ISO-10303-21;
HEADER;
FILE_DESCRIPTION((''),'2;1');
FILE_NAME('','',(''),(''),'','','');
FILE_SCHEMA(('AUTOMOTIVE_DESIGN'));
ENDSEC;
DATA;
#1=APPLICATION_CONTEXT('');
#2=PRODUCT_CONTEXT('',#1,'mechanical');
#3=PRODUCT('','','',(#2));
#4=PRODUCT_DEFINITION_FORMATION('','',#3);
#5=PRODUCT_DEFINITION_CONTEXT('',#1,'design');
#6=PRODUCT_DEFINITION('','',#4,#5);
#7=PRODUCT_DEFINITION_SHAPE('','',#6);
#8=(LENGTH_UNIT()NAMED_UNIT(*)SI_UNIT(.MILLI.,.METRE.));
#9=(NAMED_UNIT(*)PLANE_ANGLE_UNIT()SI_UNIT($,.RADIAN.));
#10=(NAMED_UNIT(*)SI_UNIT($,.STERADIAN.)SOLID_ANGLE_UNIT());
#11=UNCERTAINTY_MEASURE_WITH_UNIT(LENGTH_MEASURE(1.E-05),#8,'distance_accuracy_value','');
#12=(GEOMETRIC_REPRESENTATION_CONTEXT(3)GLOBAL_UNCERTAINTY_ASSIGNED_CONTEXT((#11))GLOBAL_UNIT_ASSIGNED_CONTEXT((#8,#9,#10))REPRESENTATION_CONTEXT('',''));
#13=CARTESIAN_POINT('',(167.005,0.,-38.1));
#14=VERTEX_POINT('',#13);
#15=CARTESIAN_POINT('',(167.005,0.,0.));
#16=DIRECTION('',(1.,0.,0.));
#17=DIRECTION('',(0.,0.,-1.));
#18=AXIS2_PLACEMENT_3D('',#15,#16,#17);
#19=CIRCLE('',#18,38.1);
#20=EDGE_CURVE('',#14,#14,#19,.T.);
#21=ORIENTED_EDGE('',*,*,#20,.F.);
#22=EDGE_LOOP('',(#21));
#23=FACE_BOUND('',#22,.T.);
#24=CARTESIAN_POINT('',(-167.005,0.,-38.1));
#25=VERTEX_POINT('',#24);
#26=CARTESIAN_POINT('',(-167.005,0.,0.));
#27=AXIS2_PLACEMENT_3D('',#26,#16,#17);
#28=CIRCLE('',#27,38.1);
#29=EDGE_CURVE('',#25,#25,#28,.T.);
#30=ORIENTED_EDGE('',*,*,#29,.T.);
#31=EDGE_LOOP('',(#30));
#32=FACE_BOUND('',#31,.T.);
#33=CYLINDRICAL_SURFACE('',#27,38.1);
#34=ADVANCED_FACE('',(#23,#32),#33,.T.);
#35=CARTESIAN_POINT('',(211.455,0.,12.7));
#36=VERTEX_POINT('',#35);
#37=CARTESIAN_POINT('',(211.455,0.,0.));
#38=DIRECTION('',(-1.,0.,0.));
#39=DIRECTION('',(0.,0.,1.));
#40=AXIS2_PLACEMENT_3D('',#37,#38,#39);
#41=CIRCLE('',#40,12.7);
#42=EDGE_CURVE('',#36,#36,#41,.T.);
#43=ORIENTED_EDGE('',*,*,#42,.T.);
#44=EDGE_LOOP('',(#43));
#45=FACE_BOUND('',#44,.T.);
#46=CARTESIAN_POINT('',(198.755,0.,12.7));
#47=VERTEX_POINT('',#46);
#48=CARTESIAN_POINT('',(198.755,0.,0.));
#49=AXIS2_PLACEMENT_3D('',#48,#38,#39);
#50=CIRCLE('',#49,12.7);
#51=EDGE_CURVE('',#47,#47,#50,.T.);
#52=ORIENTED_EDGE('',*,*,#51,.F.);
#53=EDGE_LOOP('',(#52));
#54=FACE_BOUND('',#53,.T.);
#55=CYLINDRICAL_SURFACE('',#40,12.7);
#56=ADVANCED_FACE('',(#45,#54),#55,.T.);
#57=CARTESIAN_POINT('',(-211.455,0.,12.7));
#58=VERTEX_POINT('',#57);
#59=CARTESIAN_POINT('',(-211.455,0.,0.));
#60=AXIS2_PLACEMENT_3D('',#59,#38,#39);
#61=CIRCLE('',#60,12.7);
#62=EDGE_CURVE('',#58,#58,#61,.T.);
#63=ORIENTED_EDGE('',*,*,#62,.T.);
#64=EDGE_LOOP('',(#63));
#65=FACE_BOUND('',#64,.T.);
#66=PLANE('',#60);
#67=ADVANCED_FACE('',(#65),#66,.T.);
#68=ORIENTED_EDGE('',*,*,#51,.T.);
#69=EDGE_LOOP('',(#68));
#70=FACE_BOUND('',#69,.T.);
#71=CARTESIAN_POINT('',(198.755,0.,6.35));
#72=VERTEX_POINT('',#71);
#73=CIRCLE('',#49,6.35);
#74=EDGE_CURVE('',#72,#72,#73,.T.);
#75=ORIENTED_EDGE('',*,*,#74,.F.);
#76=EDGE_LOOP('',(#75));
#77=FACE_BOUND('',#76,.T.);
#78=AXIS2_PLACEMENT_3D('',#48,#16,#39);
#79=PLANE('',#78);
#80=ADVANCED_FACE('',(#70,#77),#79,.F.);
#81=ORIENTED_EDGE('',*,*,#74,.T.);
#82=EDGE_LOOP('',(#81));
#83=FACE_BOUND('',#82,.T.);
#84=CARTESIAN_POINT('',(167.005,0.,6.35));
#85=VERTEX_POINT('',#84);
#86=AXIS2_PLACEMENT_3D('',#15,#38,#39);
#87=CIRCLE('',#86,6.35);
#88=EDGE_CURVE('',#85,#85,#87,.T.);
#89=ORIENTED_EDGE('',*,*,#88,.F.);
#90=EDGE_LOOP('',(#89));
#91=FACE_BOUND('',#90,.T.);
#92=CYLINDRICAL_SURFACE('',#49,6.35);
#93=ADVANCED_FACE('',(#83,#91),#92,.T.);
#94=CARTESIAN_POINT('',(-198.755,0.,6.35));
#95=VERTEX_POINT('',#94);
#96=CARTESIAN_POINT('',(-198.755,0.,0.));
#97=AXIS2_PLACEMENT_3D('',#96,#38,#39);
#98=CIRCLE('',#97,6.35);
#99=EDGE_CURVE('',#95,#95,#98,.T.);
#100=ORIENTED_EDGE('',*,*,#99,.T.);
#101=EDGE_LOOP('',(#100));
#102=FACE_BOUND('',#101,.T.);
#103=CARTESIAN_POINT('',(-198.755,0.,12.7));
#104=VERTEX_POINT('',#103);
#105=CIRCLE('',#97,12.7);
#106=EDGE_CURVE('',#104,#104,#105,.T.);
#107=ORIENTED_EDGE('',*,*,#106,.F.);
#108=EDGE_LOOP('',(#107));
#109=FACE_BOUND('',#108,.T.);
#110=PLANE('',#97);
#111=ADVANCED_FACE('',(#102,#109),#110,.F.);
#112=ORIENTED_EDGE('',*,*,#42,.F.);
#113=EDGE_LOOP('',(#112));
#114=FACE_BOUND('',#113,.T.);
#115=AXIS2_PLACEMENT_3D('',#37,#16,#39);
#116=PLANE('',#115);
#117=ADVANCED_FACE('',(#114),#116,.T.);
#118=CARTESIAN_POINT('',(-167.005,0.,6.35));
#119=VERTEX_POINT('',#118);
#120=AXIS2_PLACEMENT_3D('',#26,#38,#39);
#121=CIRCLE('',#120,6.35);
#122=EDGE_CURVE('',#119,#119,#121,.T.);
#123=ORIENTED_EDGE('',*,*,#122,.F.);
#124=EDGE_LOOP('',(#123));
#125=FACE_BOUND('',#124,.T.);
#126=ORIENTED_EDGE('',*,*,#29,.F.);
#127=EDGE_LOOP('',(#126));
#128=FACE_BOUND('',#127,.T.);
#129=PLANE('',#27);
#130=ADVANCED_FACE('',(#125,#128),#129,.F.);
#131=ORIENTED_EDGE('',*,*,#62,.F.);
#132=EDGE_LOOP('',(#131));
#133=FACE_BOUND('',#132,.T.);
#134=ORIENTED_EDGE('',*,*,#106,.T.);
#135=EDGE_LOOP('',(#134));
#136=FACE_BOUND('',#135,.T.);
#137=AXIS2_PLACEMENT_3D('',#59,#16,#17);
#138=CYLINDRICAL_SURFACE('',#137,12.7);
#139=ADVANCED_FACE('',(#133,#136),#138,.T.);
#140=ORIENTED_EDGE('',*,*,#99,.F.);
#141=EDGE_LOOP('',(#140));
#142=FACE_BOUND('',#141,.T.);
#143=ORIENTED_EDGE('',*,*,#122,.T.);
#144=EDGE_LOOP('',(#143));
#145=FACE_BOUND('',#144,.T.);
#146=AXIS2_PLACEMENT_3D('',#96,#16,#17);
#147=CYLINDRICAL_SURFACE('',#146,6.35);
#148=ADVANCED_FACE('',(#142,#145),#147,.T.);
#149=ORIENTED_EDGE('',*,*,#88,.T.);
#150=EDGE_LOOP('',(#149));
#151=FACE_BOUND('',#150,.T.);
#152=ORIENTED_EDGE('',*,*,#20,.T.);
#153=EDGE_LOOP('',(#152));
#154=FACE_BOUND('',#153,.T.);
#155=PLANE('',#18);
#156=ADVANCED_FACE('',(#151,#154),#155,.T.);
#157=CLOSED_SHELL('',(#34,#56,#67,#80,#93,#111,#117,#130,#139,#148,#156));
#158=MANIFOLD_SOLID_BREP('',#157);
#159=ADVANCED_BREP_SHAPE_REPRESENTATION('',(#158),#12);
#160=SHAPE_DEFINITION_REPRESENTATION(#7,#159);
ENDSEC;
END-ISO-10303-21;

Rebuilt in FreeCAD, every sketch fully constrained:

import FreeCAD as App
import Part
import Sketcher
Q = App.Units.Quantity

doc = App.newDocument("Part")
body = doc.addObject("PartDesign::Body", "Body")

# Sketch on YZ plane
sketch1 = body.newObject("Sketcher::SketchObject", "Sketch")
sketch1.AttachmentSupport = (doc.getObject("YZ_Plane"), [""])
sketch1.MapMode = "FlatFace"
sketch1.addGeometry(Part.Circle(App.Vector(0, 0, 0), App.Vector(0, 0, 1), 38), False)
sketch1.addConstraint(Sketcher.Constraint("Coincident", 0, 3, -1, 1))
sketch1.addConstraint(Sketcher.Constraint("Diameter", 0, Q("3 in")))
pad1 = body.newObject("PartDesign::Pad", "Pad")
pad1.Profile = sketch1
pad1.Type = "TwoLengths"
pad1.Length = Q("6.575 in")
pad1.Length2 = Q("6.575 in")

# Sketch on YZ plane
sketch2 = body.newObject("Sketcher::SketchObject", "Sketch001")
sketch2.AttachmentSupport = (doc.getObject("YZ_Plane"), [""])
sketch2.MapMode = "FlatFace"
sketch2.AttachmentOffset = App.Placement(App.Vector(0, 0, -6.575 * 25.4), App.Rotation())
sketch2.addGeometry(Part.Circle(App.Vector(0, 0, 0), App.Vector(0, 0, 1), 6), False)
sketch2.addConstraint(Sketcher.Constraint("Coincident", 0, 3, -1, 1))
sketch2.addConstraint(Sketcher.Constraint("Diameter", 0, Q("0.5 in")))
pad2 = body.newObject("PartDesign::Pad", "Pad001")
pad2.Profile = sketch2
pad2.Length = Q("1.25 in")
pad2.Reversed = True

# Sketch on YZ plane
sketch3 = body.newObject("Sketcher::SketchObject", "Sketch002")
sketch3.AttachmentSupport = (doc.getObject("YZ_Plane"), [""])
sketch3.MapMode = "FlatFace"
sketch3.AttachmentOffset = App.Placement(App.Vector(0, 0, -7.825 * 25.4), App.Rotation())
sketch3.addGeometry(Part.Circle(App.Vector(0, 0, 0), App.Vector(0, 0, 1), 13), False)
sketch3.addConstraint(Sketcher.Constraint("Coincident", 0, 3, -1, 1))
sketch3.addConstraint(Sketcher.Constraint("Diameter", 0, Q("1 in")))
pad3 = body.newObject("PartDesign::Pad", "Pad002")
pad3.Profile = sketch3
pad3.Length = Q("0.5 in")
pad3.Reversed = True
doc.recompute()

mirrored = body.newObject("PartDesign::Mirrored", "Mirrored")
mirrored.Originals = [pad2, pad3]
mirrored.MirrorPlane = (doc.getObject("YZ_Plane"), [""])
body.Tip = mirrored

doc.recompute()
